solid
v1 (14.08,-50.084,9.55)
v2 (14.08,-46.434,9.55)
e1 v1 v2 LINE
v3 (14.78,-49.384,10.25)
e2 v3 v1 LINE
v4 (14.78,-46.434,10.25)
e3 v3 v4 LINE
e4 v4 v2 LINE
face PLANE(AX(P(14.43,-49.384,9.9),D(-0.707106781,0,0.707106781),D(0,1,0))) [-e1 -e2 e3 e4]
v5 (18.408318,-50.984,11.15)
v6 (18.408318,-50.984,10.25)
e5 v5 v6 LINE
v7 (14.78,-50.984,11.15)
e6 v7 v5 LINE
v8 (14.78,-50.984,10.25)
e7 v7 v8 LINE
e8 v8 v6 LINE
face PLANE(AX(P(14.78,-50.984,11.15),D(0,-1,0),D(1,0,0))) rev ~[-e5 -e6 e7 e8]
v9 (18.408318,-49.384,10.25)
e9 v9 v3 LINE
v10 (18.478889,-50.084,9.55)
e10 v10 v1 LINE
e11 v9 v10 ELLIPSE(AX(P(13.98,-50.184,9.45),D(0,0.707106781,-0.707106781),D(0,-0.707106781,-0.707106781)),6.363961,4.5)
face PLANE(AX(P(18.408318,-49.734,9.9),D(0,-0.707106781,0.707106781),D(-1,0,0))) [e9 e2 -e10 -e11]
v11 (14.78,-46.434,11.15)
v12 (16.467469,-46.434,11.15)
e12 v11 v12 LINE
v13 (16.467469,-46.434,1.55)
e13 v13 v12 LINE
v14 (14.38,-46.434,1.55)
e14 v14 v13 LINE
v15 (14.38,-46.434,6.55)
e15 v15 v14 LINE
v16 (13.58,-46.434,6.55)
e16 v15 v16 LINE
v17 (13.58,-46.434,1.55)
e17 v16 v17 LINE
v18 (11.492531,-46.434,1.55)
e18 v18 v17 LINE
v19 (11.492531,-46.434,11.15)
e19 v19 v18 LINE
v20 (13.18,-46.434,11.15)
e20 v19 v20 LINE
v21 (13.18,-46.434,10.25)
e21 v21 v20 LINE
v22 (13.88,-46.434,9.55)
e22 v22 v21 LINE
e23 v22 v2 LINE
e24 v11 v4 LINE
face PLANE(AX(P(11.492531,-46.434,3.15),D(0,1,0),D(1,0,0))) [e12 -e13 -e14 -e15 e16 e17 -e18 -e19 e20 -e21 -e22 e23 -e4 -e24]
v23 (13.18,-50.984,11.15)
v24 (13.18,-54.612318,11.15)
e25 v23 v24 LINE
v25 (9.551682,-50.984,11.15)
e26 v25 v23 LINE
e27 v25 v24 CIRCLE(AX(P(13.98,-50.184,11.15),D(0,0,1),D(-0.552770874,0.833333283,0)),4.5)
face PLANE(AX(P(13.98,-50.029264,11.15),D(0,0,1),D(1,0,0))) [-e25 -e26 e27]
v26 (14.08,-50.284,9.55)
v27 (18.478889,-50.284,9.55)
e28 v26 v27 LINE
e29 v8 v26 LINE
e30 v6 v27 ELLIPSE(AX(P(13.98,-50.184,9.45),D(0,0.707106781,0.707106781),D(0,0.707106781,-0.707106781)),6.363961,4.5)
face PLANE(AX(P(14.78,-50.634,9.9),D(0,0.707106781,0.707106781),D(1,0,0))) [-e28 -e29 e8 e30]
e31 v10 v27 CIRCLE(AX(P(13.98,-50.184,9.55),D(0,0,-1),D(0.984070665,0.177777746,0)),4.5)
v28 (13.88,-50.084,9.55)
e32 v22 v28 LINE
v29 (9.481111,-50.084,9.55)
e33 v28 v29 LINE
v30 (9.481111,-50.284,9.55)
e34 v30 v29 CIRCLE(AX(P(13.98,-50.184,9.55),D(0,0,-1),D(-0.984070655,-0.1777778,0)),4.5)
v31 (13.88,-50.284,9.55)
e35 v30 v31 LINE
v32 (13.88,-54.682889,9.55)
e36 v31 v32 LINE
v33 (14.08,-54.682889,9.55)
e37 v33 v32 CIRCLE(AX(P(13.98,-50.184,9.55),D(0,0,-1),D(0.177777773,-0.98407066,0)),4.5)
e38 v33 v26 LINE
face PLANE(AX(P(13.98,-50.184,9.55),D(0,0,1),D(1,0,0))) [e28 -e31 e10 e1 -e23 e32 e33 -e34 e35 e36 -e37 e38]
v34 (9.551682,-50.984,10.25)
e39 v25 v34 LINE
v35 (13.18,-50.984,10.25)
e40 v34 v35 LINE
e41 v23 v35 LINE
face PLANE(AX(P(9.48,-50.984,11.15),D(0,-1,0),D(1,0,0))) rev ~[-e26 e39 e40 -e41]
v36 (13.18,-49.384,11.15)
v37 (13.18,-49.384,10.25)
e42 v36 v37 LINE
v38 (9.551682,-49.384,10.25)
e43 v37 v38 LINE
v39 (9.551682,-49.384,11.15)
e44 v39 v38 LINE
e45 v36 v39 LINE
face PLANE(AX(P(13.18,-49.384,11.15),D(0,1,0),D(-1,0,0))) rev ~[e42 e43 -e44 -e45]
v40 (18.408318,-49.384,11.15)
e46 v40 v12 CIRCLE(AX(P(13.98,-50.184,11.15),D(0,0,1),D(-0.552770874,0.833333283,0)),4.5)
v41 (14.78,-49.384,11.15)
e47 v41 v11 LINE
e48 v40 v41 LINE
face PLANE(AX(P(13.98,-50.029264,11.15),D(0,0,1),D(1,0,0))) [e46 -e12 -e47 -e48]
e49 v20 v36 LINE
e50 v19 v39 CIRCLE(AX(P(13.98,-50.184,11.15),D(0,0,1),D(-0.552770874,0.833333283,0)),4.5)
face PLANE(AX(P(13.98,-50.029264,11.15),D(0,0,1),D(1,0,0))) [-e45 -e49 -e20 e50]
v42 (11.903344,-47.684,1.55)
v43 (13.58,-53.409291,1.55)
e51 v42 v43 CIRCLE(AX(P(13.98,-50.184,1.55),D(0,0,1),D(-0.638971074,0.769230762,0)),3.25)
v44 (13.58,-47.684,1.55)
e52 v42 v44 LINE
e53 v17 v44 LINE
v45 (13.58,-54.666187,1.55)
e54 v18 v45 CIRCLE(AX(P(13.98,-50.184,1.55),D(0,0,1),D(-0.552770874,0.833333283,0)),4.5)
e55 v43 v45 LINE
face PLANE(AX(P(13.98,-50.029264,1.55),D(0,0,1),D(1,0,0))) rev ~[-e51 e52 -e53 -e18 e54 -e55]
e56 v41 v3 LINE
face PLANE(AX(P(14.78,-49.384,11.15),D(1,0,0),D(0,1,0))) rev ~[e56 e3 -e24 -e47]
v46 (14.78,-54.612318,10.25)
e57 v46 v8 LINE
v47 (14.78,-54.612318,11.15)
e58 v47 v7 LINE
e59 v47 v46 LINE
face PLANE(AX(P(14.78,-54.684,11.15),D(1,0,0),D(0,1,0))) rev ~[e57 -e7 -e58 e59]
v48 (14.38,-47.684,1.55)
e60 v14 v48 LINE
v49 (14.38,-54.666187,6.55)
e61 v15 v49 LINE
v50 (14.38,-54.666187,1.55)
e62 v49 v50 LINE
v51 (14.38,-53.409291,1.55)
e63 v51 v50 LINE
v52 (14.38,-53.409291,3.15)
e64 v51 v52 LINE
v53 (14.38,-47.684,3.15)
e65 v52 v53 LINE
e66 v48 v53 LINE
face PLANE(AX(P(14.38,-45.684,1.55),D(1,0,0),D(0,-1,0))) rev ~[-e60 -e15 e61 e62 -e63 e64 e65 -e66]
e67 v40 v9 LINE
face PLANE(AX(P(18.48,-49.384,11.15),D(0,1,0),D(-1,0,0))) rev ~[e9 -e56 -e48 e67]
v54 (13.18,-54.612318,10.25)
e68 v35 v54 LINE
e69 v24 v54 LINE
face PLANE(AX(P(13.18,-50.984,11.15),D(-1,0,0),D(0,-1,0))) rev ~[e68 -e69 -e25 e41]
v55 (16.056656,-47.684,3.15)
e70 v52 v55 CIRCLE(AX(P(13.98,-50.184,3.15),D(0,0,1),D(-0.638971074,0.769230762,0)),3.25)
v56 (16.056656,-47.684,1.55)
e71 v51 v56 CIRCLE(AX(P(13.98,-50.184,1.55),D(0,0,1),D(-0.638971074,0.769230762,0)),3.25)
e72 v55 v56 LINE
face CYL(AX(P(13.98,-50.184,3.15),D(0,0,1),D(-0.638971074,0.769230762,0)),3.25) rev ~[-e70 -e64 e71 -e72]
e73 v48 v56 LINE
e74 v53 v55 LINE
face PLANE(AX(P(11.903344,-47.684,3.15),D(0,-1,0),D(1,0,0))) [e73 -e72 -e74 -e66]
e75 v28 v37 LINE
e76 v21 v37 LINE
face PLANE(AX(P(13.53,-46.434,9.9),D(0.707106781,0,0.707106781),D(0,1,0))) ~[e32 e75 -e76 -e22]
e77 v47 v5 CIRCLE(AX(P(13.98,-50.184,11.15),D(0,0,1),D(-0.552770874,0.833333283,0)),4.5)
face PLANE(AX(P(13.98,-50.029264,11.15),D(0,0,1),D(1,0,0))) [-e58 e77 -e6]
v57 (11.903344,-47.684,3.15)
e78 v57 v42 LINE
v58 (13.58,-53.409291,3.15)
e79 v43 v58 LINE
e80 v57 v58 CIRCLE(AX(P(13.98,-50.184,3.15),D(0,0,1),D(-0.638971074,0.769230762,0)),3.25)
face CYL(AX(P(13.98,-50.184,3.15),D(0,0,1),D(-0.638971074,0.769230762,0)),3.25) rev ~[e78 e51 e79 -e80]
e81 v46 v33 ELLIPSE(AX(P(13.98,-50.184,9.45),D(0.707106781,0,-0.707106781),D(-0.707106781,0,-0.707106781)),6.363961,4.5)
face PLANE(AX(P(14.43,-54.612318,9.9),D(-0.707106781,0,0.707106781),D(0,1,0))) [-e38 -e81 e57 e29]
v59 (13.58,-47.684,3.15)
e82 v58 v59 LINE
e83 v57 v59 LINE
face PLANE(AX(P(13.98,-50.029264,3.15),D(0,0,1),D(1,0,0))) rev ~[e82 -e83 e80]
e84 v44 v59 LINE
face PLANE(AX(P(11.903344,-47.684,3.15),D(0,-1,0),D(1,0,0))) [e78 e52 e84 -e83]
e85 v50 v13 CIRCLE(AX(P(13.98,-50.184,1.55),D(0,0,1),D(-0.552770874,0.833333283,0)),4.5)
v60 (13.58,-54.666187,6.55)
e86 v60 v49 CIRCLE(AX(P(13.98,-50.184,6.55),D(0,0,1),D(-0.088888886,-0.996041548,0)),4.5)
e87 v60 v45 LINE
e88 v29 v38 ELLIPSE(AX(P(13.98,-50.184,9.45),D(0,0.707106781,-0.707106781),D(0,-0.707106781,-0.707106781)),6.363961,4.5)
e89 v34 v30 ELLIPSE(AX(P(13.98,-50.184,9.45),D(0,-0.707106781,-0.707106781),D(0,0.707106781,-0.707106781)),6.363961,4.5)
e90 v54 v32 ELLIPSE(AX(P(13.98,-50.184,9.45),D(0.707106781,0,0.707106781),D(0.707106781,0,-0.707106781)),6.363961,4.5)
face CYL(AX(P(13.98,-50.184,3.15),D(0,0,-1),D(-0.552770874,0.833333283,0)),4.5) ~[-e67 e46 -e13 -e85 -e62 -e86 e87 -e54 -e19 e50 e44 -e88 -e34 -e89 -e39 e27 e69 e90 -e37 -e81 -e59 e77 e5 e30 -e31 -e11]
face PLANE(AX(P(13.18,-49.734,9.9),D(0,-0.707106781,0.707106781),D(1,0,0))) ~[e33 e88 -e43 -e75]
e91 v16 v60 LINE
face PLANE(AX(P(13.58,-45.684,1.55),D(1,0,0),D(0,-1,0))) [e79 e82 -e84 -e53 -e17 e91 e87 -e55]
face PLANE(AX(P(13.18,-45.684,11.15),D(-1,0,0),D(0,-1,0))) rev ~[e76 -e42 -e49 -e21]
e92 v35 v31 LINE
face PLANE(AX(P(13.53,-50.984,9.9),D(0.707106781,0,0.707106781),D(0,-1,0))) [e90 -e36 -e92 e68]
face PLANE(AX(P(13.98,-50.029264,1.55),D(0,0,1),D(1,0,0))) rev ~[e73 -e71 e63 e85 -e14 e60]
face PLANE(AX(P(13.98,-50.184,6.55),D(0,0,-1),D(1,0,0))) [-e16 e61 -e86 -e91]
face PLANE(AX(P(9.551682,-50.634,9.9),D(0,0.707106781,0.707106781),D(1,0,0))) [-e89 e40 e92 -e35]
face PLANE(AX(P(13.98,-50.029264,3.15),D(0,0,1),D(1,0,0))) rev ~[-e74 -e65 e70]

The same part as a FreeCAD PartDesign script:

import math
import FreeCAD as App
import Part
import Sketcher
from FreeCAD import Vector
Q = App.Units.Quantity


def edges_at(feature, points):
    """Names of the edges that pass closest to the given points."""
    edges = feature.Shape.Edges
    near = lambda p: min(range(len(edges)), key=lambda i: edges[i].distToShape(Part.Vertex(*p))[0])
    return sorted({f"Edge{near(p) + 1}" for p in points})

doc = App.newDocument("Part")
params = doc.addObject("Spreadsheet::Sheet", "Params")
for row, (alias, value) in enumerate([
    ("sketch1_radius", "4.5 mm"),
    ("sketch1_radius2", "3.25 mm"),
    ("sketch1_height", "3.75 mm"),
    ("pad1_length", "1.6 mm"),
    ("sketch2_radius", "4.5 mm"),
    ("sketch2_height", "3.75 mm"),
    ("pad2_length", "8 mm"),
    ("sketch3_width", "3.7 mm"),
    ("sketch3_width2", "1.6 mm"),
    ("pocket1_length", "1.6 mm"),
    ("chamfer_size", "0.7 mm"),
    ("sketch4_height", "9 mm"),
    ("sketch4_width", "0.8 mm"),
    ("pocket2_length", "5 mm"),
], start=1):
    params.set(f"A{row}", alias)
    params.set(f"B{row}", "=" + value)
    params.setAlias(f"B{row}", alias)

body = doc.addObject("PartDesign::Body", "Body")

# Sketch on XY plane
sketch1 = doc.addObject("Sketcher::SketchObject", "Sketch")
body.addObject(sketch1)
sketch1.AttachmentSupport = (doc.XY_Plane, [""])
sketch1.MapMode = "FlatFace"
sketch1.AttachmentOffset = App.Placement(Vector(0, 0, 3.15), App.Rotation())
sketch1.addGeometry([
    Part.ArcOfCircle(Part.Circle(Vector(14, -50.2, 0), Vector(0, 0, 1), 4.5), math.radians(124), math.radians(416)),
    Part.LineSegment(Vector(16.5, -46.4, 0), Vector(11.5, -46.4, 0)),
    Part.ArcOfCircle(Part.Circle(Vector(14, -50.2, 0), Vector(0, 0, 1), 3.3), math.radians(130), math.radians(410)),
    Part.LineSegment(Vector(11.9, -47.7, 0), Vector(16.1, -47.7, 0)),
], False)
sketch1.addConstraint([
    Sketcher.Constraint("Coincident", 0, 1, 1, 2),
    Sketcher.Constraint("Coincident", 1, 1, 0, 2),
    Sketcher.Constraint("Coincident", 2, 1, 3, 1),
    Sketcher.Constraint("Coincident", 3, 2, 2, 2),
    Sketcher.Constraint("Horizontal", 1),
    Sketcher.Constraint("Horizontal", 3),
    Sketcher.Constraint("Coincident", 2, 3, 0, 3),
    Sketcher.Constraint("Radius", 0, Q("4.5 mm")),
    Sketcher.Constraint("Radius", 2, Q("3.25 mm")),
    Sketcher.Constraint("DistanceY", 0, 3, 2, 1, Q("2.5 mm")),
    Sketcher.Constraint("DistanceX", -1, 1, 0, 3, Q("13.98 mm")),
    Sketcher.Constraint("DistanceY", 0, 3, 0, 1, Q("3.75 mm")),
    Sketcher.Constraint("DistanceY", 0, 3, -1, 1, Q("50.184 mm")),
])
sketch1.setExpression("Constraints[7]", "Params.sketch1_radius")
sketch1.setExpression("Constraints[8]", "Params.sketch1_radius2")
sketch1.setExpression("Constraints[11]", "Params.sketch1_height")
pad1 = doc.addObject("PartDesign::Pad", "Pad")
body.addObject(pad1)
pad1.Profile = sketch1
pad1.setExpression("Length", "Params.pad1_length")
pad1.Reversed = True

# Sketch on XY plane
sketch2 = doc.addObject("Sketcher::SketchObject", "Sketch001")
body.addObject(sketch2)
sketch2.AttachmentSupport = (doc.XY_Plane, [""])
sketch2.MapMode = "FlatFace"
sketch2.AttachmentOffset = App.Placement(Vector(0, 0, 3.15), App.Rotation())
sketch2.addGeometry([
    Part.ArcOfCircle(Part.Circle(Vector(14, -50.2, 0), Vector(0, 0, 1), 4.5), math.radians(124), math.radians(416)),
    Part.LineSegment(Vector(16.5, -46.4, 0), Vector(11.5, -46.4, 0)),
], False)
sketch2.addConstraint([
    Sketcher.Constraint("Coincident", 0, 1, 1, 2),
    Sketcher.Constraint("Coincident", 1, 1, 0, 2),
    Sketcher.Constraint("Horizontal", 1),
    Sketcher.Constraint("Radius", 0, Q("4.5 mm")),
    Sketcher.Constraint("DistanceX", -1, 1, 0, 3, Q("13.98 mm")),
    Sketcher.Constraint("DistanceY", 0, 3, 0, 1, Q("3.75 mm")),
    Sketcher.Constraint("DistanceY", 0, 3, -1, 1, Q("50.184 mm")),
])
sketch2.setExpression("Constraints[3]", "Params.sketch2_radius")
sketch2.setExpression("Constraints[5]", "Params.sketch2_height")
pad2 = doc.addObject("PartDesign::Pad", "Pad001")
body.addObject(pad2)
pad2.Profile = sketch2
pad2.setExpression("Length", "Params.pad2_length")

# Sketch on XY plane
sketch3 = doc.addObject("Sketcher::SketchObject", "Sketch002")
body.addObject(sketch3)
sketch3.AttachmentSupport = (doc.XY_Plane, [""])
sketch3.MapMode = "FlatFace"
sketch3.AttachmentOffset = App.Placement(Vector(0, 0, 11.15), App.Rotation())
sketch3.addGeometry([
    Part.LineSegment(Vector(14.8, -54.7, 0), Vector(14.8, -51, 0)),  # 0
    Part.LineSegment(Vector(14.8, -51, 0), Vector(18.5, -51, 0)),  # 1
    Part.LineSegment(Vector(18.5, -51, 0), Vector(18.5, -49.4, 0)),  # 2
    Part.LineSegment(Vector(18.5, -49.4, 0), Vector(14.8, -49.4, 0)),  # 3
    Part.LineSegment(Vector(14.8, -49.4, 0), Vector(14.8, -45.7, 0)),  # 4
    Part.LineSegment(Vector(14.8, -45.7, 0), Vector(13.2, -45.7, 0)),  # 5
    Part.LineSegment(Vector(13.2, -45.7, 0), Vector(13.2, -49.4, 0)),  # 6
    Part.LineSegment(Vector(13.2, -49.4, 0), Vector(9.5, -49.4, 0)),  # 7
    Part.LineSegment(Vector(9.5, -49.4, 0), Vector(9.5, -51, 0)),  # 8
    Part.LineSegment(Vector(9.5, -51, 0), Vector(13.2, -51, 0)),  # 9
    Part.LineSegment(Vector(13.2, -51, 0), Vector(13.2, -54.7, 0)),  # 10
    Part.LineSegment(Vector(13.2, -54.7, 0), Vector(14.8, -54.7, 0)),  # 11
], False)
sketch3.addConstraint([
    Sketcher.Constraint("Coincident", 0, 2, 1, 1),
    Sketcher.Constraint("Coincident", 1, 2, 2, 1),
    Sketcher.Constraint("Coincident", 2, 2, 3, 1),
    Sketcher.Constraint("Coincident", 3, 2, 4, 1),
    Sketcher.Constraint("Coincident", 4, 2, 5, 1),
    Sketcher.Constraint("Coincident", 5, 2, 6, 1),
    Sketcher.Constraint("Coincident", 6, 2, 7, 1),
    Sketcher.Constraint("Coincident", 7, 2, 8, 1),
    Sketcher.Constraint("Coincident", 8, 2, 9, 1),
    Sketcher.Constraint("Coincident", 9, 2, 10, 1),
    Sketcher.Constraint("Coincident", 10, 2, 11, 1),
    Sketcher.Constraint("Coincident", 11, 2, 0, 1),
    Sketcher.Constraint("Vertical", 0),
    Sketcher.Constraint("Horizontal", 1),
    Sketcher.Constraint("Vertical", 2),
    Sketcher.Constraint("Horizontal", 3),
    Sketcher.Constraint("Vertical", 4),
    Sketcher.Constraint("Horizontal", 5),
    Sketcher.Constraint("Vertical", 6),
    Sketcher.Constraint("Horizontal", 7),
    Sketcher.Constraint("Vertical", 8),
    Sketcher.Constraint("Horizontal", 9),
    Sketcher.Constraint("Vertical", 10),
    Sketcher.Constraint("Horizontal", 11),
    Sketcher.Constraint("Horizontal", 3, 2, 6, 2),
    Sketcher.Constraint("Horizontal", 1, 2, 8, 2),
    Sketcher.Constraint("Vertical", 0, 2, 3, 2),
    Sketcher.Constraint("Vertical", 6, 2, 9, 2),
    Sketcher.Constraint("Equal", 3, 7),
    Sketcher.Constraint("Equal", 9, 0),
    Sketcher.Constraint("Equal", 11, 2),
    Sketcher.Constraint("Equal", 0, 4),
    Sketcher.Constraint("DistanceX", 1, 1, 1, 2, Q("3.7 mm")),
    Sketcher.Constraint("DistanceX", 5, 2, 5, 1, Q("1.6 mm")),
    Sketcher.Constraint("DistanceX", -1, 1, 0, 2, Q("14.78 mm")),
    Sketcher.Constraint("DistanceY", 0, 2, -1, 1, Q("50.984 mm")),
])
sketch3.setExpression("Constraints[32]", "Params.sketch3_width")
sketch3.setExpression("Constraints[33]", "Params.sketch3_width2")
pocket1 = doc.addObject("PartDesign::Pocket", "Pocket")
body.addObject(pocket1)
pocket1.Profile = sketch3
pocket1.setExpression("Length", "Params.pocket1_length")
doc.recompute()

chamfer = doc.addObject("PartDesign::Chamfer", "Chamfer")
body.addObject(chamfer)
chamfer.Base = (pocket1, edges_at(pocket1, [
    (16.594, -50.984, 9.55),
    (14.78, -47.909, 9.55),
    (13.18, -47.909, 9.55),
    (11.366, -50.984, 9.55),
    (11.366, -49.384, 9.55),
    (13.18, -52.798, 9.55),
    (16.594, -49.384, 9.55),
    (14.78, -52.798, 9.55),
]))
chamfer.setExpression("Size", "Params.chamfer_size")

# Sketch on XY plane
sketch4 = doc.addObject("Sketcher::SketchObject", "Sketch003")
body.addObject(sketch4)
sketch4.AttachmentSupport = (doc.XY_Plane, [""])
sketch4.MapMode = "FlatFace"
sketch4.AttachmentOffset = App.Placement(Vector(0, 0, 1.55), App.Rotation())
sketch4.addGeometry([
    Part.LineSegment(Vector(13.6, -54.7, 0), Vector(13.6, -45.7, 0)),
    Part.LineSegment(Vector(13.6, -45.7, 0), Vector(14.4, -45.7, 0)),
    Part.LineSegment(Vector(14.4, -45.7, 0), Vector(14.4, -54.7, 0)),
    Part.LineSegment(Vector(14.4, -54.7, 0), Vector(13.6, -54.7, 0)),
], False)
sketch4.addConstraint([
    Sketcher.Constraint("Coincident", 0, 2, 1, 1),
    Sketcher.Constraint("Coincident", 1, 2, 2, 1),
    Sketcher.Constraint("Coincident", 2, 2, 3, 1),
    Sketcher.Constraint("Coincident", 3, 2, 0, 1),
    Sketcher.Constraint("Vertical", 0),
    Sketcher.Constraint("Horizontal", 1),
    Sketcher.Constraint("Vertical", 2),
    Sketcher.Constraint("Horizontal", 3),
    Sketcher.Constraint("DistanceY", 0, 1, 0, 2, Q("9 mm")),
    Sketcher.Constraint("DistanceX", 1, 1, 1, 2, Q("0.8 mm")),
    Sketcher.Constraint("DistanceX", -1, 1, 0, 2, Q("13.58 mm")),
    Sketcher.Constraint("DistanceY", 0, 2, -1, 1, Q("45.684 mm")),
])
sketch4.setExpression("Constraints[8]", "Params.sketch4_height")
sketch4.setExpression("Constraints[9]", "Params.sketch4_width")
pocket2 = doc.addObject("PartDesign::Pocket", "Pocket001")
body.addObject(pocket2)
pocket2.Profile = sketch4
pocket2.setExpression("Length", "Params.pocket2_length")
pocket2.Reversed = True

doc.recompute()
